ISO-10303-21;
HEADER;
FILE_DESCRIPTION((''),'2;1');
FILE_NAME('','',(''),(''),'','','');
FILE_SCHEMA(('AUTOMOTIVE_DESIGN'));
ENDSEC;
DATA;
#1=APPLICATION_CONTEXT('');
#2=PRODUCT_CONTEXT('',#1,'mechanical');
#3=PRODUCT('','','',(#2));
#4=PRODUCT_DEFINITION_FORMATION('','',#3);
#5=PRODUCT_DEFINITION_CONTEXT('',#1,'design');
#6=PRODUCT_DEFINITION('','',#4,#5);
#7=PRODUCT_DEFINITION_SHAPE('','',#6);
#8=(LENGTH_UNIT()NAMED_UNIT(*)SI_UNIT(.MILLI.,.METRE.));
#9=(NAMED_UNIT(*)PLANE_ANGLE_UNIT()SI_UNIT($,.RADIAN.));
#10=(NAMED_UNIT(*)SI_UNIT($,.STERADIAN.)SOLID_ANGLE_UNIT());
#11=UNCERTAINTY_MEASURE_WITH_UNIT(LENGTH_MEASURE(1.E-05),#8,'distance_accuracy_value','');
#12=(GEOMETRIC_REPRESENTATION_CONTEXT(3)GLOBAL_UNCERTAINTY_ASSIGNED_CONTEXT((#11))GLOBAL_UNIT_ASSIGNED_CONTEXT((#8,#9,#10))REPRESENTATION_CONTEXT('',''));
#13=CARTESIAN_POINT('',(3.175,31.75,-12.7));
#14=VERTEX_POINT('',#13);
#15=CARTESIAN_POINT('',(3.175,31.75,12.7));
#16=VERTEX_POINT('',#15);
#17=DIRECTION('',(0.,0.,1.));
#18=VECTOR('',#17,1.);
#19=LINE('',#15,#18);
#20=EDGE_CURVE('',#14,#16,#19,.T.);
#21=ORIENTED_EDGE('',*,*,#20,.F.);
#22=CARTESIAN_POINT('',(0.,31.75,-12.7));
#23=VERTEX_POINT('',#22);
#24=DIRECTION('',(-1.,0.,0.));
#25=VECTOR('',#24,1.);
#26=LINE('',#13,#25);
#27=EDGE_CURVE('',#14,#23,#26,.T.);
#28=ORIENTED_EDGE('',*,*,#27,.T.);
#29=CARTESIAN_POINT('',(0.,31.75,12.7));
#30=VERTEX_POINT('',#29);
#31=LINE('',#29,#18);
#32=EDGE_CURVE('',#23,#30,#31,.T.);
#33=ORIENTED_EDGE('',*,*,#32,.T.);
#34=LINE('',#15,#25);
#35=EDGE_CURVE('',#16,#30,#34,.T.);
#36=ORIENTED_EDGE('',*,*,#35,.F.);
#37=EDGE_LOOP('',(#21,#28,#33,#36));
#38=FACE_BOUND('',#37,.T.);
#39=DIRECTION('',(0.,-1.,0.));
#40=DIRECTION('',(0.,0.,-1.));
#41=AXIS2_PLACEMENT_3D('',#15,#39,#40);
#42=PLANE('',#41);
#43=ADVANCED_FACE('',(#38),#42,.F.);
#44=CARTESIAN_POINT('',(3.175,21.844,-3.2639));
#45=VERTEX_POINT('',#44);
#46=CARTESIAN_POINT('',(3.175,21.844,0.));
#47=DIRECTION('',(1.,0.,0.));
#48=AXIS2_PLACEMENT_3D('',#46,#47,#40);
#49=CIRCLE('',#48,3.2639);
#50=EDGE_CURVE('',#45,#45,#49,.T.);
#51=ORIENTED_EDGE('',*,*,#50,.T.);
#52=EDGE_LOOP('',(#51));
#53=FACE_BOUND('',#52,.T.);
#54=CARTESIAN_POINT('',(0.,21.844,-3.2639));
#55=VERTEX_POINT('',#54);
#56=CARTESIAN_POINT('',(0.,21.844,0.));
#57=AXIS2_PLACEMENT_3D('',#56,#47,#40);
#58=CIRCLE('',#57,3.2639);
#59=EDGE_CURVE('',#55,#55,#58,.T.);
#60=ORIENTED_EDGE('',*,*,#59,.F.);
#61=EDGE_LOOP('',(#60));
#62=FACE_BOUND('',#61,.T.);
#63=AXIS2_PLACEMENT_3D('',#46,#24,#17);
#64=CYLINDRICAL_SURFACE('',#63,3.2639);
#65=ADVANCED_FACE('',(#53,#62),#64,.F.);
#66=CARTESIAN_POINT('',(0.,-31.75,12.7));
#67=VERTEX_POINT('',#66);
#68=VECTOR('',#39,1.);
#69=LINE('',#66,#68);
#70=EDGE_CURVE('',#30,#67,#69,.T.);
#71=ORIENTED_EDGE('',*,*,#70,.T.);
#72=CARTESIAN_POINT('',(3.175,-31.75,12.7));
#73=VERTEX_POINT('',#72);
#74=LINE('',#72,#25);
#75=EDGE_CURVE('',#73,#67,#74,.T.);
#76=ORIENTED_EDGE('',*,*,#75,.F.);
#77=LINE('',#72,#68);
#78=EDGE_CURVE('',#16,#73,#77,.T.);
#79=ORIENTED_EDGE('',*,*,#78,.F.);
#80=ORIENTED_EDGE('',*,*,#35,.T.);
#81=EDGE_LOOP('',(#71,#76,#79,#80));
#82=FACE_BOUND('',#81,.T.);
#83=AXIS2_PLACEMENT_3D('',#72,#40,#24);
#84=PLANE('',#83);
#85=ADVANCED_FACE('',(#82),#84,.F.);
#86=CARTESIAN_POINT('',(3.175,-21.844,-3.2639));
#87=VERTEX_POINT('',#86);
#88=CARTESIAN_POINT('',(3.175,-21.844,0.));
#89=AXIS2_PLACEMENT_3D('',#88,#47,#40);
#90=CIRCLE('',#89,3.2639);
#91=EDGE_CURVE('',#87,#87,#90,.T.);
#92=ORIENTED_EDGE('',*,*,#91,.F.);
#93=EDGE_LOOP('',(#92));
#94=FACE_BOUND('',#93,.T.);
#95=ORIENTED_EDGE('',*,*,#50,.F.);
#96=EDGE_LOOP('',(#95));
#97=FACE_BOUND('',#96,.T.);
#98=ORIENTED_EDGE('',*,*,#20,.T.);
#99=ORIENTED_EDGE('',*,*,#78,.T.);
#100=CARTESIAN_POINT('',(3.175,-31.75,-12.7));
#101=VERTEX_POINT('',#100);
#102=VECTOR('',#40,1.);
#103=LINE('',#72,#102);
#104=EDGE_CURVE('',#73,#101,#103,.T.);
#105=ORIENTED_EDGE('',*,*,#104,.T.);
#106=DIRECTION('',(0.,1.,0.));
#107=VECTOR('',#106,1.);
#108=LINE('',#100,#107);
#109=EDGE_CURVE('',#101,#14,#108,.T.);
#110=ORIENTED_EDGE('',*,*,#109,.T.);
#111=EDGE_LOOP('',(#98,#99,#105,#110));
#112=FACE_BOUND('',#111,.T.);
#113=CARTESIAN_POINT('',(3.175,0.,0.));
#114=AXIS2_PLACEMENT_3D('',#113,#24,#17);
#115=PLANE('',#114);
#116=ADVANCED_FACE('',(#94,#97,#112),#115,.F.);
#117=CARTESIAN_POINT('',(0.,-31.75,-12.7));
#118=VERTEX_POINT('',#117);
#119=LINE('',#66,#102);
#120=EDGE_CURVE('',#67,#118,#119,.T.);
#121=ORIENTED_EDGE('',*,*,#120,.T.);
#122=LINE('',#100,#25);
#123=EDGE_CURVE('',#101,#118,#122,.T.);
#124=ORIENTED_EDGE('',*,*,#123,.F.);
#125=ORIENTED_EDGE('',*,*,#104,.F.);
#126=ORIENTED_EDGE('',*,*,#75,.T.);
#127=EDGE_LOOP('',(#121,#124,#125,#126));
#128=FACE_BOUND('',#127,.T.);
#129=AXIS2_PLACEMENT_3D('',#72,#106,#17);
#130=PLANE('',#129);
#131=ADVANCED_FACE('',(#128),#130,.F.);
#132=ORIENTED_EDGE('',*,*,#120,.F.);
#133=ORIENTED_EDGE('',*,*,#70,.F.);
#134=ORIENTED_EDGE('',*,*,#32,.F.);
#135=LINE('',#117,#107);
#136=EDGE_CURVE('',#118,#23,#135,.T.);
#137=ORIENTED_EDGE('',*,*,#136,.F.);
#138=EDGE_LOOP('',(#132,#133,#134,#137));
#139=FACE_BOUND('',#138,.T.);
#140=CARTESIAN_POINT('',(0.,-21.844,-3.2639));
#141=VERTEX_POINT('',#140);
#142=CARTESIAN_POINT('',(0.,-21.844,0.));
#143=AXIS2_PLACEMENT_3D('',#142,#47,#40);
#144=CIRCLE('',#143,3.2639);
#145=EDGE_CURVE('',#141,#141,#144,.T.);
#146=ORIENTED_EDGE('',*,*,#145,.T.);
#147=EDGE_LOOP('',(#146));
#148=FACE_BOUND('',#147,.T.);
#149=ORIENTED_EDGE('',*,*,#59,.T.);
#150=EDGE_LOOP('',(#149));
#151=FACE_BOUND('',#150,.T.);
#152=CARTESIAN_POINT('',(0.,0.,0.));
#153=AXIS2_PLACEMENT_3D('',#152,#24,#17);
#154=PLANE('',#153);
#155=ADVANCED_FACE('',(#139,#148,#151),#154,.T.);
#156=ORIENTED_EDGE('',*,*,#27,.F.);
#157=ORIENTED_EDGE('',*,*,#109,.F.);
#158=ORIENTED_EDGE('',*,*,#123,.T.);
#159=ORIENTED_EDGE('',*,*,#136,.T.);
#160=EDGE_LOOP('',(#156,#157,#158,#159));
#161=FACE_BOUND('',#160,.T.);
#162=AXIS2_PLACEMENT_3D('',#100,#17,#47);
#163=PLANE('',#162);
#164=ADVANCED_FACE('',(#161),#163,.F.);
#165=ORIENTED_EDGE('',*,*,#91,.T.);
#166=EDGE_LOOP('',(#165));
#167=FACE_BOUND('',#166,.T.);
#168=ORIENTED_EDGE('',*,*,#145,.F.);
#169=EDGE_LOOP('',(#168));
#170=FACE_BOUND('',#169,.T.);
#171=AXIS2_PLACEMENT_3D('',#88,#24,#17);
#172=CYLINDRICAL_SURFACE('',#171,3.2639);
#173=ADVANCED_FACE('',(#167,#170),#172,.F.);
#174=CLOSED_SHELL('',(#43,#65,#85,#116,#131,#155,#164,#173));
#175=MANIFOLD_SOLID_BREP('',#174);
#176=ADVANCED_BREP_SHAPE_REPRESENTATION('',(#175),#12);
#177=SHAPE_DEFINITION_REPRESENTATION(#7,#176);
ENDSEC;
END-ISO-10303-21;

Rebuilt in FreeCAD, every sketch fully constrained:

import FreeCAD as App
import Part
import Sketcher
from FreeCAD import Vector
Q = App.Units.Quantity


def add_polygon(sketch, points):
    """Adds a closed chain of lines whose ends are joined by coincident constraints."""
    first, n = sketch.GeometryCount, len(points)
    for a, b in zip(points, points[1:] + points[:1]):
        sketch.addGeometry(Part.LineSegment(App.Vector(*a, 0), App.Vector(*b, 0)), False)
    for i in range(n):
        sketch.addConstraint(Sketcher.Constraint("Coincident", first + i, 2, first + (i + 1) % n, 1))

doc = App.newDocument("Part")
body = doc.addObject("PartDesign::Body", "Body")

# Sketch on YZ plane
sketch1 = body.newObject("Sketcher::SketchObject", "Sketch")
sketch1.AttachmentSupport = (doc.getObject("YZ_Plane"), [""])
sketch1.MapMode = "FlatFace"
add_polygon(sketch1, [(31.8, 12.7), (-31.8, 12.7), (-31.8, -12.7), (31.8, -12.7)])  # lines 0-3
sketch1.addGeometry(Part.Circle(Vector(-21.8, 0, 0), Vector(0, 0, 1), 3.3), False)  # 4
sketch1.addGeometry(Part.Circle(Vector(21.8, 0, 0), Vector(0, 0, 1), 3.3), False)  # 5
sketch1.addConstraint(Sketcher.Constraint("Horizontal", 0))
sketch1.addConstraint(Sketcher.Constraint("Vertical", 1))
sketch1.addConstraint(Sketcher.Constraint("Horizontal", 2))
sketch1.addConstraint(Sketcher.Constraint("Vertical", 3))
sketch1.addConstraint(Sketcher.Constraint("Equal", 4, 5))
sketch1.addConstraint(Sketcher.Constraint("Symmetric", 4, 3, 5, 3, -1, 1))
sketch1.addConstraint(Sketcher.Constraint("Symmetric", 0, 2, 2, 2, -1, 1))
sketch1.addConstraint(Sketcher.Constraint("PointOnObject", 4, 3, -1))
sketch1.addConstraint(Sketcher.Constraint("DistanceY", 1, 2, 1, 1, Q("1 in")))
sketch1.addConstraint(Sketcher.Constraint("Diameter", 4, Q("0.257 in")))
sketch1.addConstraint(Sketcher.Constraint("DistanceX", 0, 2, 0, 1, Q("2.5 in")))
sketch1.addConstraint(Sketcher.Constraint("DistanceX", 4, 3, -1, 1, Q("0.86 in")))
pad1 = body.newObject("PartDesign::Pad", "Pad")
pad1.Profile = sketch1
pad1.Length = Q("0.125 in")

doc.recompute()
